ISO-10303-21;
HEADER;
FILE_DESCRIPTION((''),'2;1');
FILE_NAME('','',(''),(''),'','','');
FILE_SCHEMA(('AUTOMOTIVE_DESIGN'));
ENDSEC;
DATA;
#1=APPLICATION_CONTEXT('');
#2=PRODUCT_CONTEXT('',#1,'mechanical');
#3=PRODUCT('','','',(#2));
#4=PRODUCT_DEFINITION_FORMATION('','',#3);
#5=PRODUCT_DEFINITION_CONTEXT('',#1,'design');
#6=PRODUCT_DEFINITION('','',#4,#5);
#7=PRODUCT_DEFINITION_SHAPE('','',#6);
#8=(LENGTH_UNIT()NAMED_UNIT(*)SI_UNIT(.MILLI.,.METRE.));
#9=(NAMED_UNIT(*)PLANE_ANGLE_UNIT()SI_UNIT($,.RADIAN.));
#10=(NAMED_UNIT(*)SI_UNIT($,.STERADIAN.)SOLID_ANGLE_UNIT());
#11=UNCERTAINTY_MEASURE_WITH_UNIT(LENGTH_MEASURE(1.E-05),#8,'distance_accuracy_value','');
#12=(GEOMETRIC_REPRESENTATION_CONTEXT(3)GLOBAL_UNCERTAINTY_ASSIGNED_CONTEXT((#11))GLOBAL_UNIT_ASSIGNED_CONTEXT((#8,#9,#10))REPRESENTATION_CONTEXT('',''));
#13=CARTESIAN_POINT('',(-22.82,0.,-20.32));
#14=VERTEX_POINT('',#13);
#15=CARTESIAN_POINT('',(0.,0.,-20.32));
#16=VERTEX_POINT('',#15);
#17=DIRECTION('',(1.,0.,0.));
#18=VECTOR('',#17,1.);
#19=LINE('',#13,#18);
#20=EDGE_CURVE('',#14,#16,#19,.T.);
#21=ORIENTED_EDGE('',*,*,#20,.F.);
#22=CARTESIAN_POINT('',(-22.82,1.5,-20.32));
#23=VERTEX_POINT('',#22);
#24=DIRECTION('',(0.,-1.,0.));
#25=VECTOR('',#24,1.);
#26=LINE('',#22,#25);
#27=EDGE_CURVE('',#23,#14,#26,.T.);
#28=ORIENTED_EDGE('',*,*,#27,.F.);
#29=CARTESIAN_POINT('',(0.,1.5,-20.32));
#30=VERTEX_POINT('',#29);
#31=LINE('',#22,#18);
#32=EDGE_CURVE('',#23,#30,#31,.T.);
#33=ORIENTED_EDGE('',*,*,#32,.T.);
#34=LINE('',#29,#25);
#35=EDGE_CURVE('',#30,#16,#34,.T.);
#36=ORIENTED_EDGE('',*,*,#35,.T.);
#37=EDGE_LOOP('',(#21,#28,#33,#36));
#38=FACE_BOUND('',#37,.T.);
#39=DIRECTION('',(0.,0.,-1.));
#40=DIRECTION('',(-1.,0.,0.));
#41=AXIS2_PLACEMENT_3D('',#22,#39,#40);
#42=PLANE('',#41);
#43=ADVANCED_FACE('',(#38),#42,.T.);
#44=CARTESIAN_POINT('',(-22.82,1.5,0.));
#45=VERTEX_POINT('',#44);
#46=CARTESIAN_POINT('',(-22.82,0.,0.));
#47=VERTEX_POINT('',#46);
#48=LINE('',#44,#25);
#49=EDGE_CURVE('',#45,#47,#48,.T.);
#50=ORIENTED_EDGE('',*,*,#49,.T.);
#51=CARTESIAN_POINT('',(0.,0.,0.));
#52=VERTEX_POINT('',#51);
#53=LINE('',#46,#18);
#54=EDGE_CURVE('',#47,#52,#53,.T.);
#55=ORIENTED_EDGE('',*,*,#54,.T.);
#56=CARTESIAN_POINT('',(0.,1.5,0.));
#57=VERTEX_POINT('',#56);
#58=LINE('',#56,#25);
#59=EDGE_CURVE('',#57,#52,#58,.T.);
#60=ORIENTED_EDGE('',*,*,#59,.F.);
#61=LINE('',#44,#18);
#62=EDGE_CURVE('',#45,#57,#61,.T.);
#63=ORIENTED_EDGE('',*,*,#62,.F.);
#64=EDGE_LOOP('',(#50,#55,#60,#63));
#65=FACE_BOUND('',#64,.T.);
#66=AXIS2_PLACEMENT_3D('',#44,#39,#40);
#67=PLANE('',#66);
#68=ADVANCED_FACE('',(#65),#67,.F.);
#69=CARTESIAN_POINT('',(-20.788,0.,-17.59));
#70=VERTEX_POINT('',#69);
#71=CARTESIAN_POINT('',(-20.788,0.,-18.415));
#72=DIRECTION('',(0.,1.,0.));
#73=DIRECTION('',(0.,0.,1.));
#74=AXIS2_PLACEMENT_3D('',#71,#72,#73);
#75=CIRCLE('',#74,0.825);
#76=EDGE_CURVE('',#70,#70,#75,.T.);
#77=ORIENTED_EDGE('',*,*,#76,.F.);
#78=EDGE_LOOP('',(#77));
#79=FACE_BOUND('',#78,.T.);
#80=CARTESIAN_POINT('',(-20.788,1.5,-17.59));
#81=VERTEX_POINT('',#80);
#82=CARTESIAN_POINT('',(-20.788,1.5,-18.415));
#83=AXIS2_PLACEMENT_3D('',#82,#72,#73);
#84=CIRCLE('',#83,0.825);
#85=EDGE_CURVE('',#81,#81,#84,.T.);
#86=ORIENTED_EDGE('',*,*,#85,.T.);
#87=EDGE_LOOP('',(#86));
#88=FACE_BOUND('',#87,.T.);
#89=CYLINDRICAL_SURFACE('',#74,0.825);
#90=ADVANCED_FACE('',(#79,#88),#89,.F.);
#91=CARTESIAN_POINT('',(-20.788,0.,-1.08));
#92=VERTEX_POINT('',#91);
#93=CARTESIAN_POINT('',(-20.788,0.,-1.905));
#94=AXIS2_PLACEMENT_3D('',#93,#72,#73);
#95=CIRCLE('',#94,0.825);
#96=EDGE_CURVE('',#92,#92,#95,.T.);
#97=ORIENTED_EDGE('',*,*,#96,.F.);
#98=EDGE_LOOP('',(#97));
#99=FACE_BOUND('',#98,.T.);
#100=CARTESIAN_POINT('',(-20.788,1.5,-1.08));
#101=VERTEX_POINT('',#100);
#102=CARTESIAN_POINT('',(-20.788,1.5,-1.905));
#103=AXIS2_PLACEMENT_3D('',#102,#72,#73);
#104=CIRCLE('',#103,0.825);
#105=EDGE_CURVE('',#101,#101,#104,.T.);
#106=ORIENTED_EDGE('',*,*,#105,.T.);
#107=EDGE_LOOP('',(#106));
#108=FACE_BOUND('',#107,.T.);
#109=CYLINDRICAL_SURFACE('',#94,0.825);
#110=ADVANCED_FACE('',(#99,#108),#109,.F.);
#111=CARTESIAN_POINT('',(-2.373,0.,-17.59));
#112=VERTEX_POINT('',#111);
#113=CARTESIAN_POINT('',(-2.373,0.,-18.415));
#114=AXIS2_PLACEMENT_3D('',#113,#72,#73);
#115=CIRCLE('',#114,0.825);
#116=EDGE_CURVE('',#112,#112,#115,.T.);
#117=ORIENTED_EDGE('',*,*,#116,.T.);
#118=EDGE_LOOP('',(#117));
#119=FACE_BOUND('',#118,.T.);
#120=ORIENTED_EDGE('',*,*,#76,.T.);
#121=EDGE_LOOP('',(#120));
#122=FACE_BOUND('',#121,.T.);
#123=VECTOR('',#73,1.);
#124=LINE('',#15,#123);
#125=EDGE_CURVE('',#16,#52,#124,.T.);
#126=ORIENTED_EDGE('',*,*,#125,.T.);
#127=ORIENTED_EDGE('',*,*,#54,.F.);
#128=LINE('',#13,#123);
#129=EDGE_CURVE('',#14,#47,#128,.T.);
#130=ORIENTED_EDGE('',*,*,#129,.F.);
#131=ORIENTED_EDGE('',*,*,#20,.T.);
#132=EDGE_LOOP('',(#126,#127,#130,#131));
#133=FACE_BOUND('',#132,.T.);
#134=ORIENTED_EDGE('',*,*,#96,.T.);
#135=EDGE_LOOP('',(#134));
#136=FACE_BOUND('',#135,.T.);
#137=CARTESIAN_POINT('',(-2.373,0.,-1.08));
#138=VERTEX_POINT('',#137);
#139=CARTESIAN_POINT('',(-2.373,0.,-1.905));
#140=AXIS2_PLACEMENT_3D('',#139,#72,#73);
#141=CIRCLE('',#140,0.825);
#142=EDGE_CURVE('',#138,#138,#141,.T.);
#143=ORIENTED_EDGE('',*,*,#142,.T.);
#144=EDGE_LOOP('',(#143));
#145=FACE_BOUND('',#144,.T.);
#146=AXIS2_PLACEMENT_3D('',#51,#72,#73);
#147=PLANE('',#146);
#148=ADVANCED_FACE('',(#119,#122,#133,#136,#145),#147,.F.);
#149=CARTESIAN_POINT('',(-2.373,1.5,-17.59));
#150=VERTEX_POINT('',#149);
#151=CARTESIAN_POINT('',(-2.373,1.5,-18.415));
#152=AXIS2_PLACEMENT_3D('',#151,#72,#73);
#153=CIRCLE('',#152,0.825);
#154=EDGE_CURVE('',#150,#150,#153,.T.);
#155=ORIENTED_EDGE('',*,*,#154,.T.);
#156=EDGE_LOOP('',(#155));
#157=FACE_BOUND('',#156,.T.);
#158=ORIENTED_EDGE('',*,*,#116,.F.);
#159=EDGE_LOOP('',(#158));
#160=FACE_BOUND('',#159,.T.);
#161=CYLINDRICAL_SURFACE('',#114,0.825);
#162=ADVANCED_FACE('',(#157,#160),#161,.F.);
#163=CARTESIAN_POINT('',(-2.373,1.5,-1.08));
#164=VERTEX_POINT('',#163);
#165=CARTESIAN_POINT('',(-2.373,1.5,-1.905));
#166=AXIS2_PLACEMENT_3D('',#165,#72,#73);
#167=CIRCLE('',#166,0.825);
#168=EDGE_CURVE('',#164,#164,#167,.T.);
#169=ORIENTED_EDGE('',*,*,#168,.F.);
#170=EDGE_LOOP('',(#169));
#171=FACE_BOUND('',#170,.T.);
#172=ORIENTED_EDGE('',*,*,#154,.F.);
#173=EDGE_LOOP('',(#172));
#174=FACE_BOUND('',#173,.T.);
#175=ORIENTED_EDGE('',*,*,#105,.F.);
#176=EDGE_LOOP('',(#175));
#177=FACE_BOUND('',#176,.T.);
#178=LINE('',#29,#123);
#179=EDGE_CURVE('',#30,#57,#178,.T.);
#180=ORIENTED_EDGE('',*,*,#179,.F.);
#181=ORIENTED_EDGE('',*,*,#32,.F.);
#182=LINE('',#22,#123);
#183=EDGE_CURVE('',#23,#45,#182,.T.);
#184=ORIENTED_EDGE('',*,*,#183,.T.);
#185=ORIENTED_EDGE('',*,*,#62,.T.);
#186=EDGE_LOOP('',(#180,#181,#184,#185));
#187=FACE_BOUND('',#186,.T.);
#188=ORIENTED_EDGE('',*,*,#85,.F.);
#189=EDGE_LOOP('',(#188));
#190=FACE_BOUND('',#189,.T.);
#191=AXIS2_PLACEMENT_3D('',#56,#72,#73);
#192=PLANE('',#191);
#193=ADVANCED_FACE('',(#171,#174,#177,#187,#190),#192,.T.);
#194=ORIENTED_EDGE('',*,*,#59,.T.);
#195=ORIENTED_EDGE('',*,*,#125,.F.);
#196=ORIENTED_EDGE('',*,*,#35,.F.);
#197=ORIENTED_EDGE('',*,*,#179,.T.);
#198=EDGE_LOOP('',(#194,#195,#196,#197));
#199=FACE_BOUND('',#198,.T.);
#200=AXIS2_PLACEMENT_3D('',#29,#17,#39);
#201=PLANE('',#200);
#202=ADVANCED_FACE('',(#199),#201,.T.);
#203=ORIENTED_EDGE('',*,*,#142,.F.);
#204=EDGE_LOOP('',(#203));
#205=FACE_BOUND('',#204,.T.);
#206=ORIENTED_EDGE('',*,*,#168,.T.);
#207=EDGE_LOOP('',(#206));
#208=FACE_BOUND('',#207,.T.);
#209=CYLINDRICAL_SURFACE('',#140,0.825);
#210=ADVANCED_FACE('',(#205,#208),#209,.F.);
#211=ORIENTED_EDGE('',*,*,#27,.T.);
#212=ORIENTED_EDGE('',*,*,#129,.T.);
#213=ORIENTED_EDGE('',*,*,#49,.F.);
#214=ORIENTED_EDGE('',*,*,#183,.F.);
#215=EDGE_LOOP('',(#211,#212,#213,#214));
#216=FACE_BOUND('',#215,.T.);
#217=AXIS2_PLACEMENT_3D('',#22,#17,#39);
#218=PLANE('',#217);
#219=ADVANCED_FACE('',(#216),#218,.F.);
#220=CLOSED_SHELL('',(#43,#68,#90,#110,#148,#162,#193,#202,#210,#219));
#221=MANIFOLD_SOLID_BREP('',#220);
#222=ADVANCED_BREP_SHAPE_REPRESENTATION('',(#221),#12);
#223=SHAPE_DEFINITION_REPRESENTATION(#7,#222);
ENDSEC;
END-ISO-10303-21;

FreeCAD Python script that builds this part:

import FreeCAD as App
import Part
import Sketcher

V = App.Vector
Q = App.Units.Quantity


def add_polygon(sketch, points):
    """Adds a closed chain of lines whose ends are joined by coincident constraints."""
    first, n = sketch.GeometryCount, len(points)
    for a, b in zip(points, points[1:] + points[:1]):
        sketch.addGeometry(Part.LineSegment(App.Vector(*a, 0), App.Vector(*b, 0)), False)
    for i in range(n):
        sketch.addConstraint(Sketcher.Constraint("Coincident", first + i, 2, first + (i + 1) % n, 1))

doc = App.newDocument("Part")
body = doc.addObject("PartDesign::Body", "Body")

# Sketch on XZ plane
sketch1 = body.newObject("Sketcher::SketchObject", "Sketch")
sketch1.AttachmentSupport = (doc.getObject("XZ_Plane"), [""])
sketch1.MapMode = "FlatFace"
add_polygon(sketch1, [(-23, -20), (-23, 0), (0, 0), (0, -20)])  # lines 0-3
sketch1.addConstraint(Sketcher.Constraint("Vertical", 0))
sketch1.addConstraint(Sketcher.Constraint("Horizontal", 1))
sketch1.addConstraint(Sketcher.Constraint("Vertical", 2))
sketch1.addConstraint(Sketcher.Constraint("Horizontal", 3))
sketch1.addConstraint(Sketcher.Constraint("Coincident", 1, 2, -1, 1))
sketch1.addConstraint(Sketcher.Constraint("DistanceX", 1, 1, 1, 2, Q("22.82 mm")))
sketch1.addConstraint(Sketcher.Constraint("DistanceY", 0, 1, 0, 2, Q("20.32 mm")))
pad1 = body.newObject("PartDesign::Pad", "Pad")
pad1.Profile = sketch1
pad1.Length = 1.5
pad1.Reversed = True

# Sketch on XZ plane
sketch2 = body.newObject("Sketcher::SketchObject", "Sketch001")
sketch2.AttachmentSupport = (doc.getObject("XZ_Plane"), [""])
sketch2.MapMode = "FlatFace"
sketch2.AttachmentOffset = App.Placement(V(0, 0, -1.5), App.Rotation())
sketch2.addGeometry(Part.Circle(V(-2.4, -18.4, 0), V(0, 0, 1), 0.8), False)
sketch2.addGeometry(Part.Circle(V(-20.8, -18.4, 0), V(0, 0, 1), 0.8), False)
sketch2.addGeometry(Part.Circle(V(-20.8, -1.9, 0), V(0, 0, 1), 0.8), False)
sketch2.addGeometry(Part.Circle(V(-2.4, -1.9, 0), V(0, 0, 1), 0.8), False)
sketch2.addConstraint(Sketcher.Constraint("Equal", 0, 1))
sketch2.addConstraint(Sketcher.Constraint("Equal", 1, 2))
sketch2.addConstraint(Sketcher.Constraint("Equal", 2, 3))
sketch2.addConstraint(Sketcher.Constraint("Horizontal", 0, 3, 1, 3))
sketch2.addConstraint(Sketcher.Constraint("Horizontal", 2, 3, 3, 3))
sketch2.addConstraint(Sketcher.Constraint("Vertical", 1, 3, 2, 3))
sketch2.addConstraint(Sketcher.Constraint("Vertical", 0, 3, 3, 3))
sketch2.addConstraint(Sketcher.Constraint("Diameter", 0, Q("1.65 mm")))
sketch2.addConstraint(Sketcher.Constraint("DistanceY", 1, 3, 2, 3, Q("16.51 mm")))
sketch2.addConstraint(Sketcher.Constraint("DistanceX", 0, 3, -1, 1, Q("2.373 mm")))
sketch2.addConstraint(Sketcher.Constraint("DistanceY", 0, 3, -1, 1, Q("18.415 mm")))
sketch2.addConstraint(Sketcher.Constraint("DistanceX", 1, 3, -1, 1, Q("20.788 mm")))
pocket1 = body.newObject("PartDesign::Pocket", "Pocket")
pocket1.Profile = sketch2
pocket1.Type = "ThroughAll"
pocket1.Reversed = True

doc.recompute()
